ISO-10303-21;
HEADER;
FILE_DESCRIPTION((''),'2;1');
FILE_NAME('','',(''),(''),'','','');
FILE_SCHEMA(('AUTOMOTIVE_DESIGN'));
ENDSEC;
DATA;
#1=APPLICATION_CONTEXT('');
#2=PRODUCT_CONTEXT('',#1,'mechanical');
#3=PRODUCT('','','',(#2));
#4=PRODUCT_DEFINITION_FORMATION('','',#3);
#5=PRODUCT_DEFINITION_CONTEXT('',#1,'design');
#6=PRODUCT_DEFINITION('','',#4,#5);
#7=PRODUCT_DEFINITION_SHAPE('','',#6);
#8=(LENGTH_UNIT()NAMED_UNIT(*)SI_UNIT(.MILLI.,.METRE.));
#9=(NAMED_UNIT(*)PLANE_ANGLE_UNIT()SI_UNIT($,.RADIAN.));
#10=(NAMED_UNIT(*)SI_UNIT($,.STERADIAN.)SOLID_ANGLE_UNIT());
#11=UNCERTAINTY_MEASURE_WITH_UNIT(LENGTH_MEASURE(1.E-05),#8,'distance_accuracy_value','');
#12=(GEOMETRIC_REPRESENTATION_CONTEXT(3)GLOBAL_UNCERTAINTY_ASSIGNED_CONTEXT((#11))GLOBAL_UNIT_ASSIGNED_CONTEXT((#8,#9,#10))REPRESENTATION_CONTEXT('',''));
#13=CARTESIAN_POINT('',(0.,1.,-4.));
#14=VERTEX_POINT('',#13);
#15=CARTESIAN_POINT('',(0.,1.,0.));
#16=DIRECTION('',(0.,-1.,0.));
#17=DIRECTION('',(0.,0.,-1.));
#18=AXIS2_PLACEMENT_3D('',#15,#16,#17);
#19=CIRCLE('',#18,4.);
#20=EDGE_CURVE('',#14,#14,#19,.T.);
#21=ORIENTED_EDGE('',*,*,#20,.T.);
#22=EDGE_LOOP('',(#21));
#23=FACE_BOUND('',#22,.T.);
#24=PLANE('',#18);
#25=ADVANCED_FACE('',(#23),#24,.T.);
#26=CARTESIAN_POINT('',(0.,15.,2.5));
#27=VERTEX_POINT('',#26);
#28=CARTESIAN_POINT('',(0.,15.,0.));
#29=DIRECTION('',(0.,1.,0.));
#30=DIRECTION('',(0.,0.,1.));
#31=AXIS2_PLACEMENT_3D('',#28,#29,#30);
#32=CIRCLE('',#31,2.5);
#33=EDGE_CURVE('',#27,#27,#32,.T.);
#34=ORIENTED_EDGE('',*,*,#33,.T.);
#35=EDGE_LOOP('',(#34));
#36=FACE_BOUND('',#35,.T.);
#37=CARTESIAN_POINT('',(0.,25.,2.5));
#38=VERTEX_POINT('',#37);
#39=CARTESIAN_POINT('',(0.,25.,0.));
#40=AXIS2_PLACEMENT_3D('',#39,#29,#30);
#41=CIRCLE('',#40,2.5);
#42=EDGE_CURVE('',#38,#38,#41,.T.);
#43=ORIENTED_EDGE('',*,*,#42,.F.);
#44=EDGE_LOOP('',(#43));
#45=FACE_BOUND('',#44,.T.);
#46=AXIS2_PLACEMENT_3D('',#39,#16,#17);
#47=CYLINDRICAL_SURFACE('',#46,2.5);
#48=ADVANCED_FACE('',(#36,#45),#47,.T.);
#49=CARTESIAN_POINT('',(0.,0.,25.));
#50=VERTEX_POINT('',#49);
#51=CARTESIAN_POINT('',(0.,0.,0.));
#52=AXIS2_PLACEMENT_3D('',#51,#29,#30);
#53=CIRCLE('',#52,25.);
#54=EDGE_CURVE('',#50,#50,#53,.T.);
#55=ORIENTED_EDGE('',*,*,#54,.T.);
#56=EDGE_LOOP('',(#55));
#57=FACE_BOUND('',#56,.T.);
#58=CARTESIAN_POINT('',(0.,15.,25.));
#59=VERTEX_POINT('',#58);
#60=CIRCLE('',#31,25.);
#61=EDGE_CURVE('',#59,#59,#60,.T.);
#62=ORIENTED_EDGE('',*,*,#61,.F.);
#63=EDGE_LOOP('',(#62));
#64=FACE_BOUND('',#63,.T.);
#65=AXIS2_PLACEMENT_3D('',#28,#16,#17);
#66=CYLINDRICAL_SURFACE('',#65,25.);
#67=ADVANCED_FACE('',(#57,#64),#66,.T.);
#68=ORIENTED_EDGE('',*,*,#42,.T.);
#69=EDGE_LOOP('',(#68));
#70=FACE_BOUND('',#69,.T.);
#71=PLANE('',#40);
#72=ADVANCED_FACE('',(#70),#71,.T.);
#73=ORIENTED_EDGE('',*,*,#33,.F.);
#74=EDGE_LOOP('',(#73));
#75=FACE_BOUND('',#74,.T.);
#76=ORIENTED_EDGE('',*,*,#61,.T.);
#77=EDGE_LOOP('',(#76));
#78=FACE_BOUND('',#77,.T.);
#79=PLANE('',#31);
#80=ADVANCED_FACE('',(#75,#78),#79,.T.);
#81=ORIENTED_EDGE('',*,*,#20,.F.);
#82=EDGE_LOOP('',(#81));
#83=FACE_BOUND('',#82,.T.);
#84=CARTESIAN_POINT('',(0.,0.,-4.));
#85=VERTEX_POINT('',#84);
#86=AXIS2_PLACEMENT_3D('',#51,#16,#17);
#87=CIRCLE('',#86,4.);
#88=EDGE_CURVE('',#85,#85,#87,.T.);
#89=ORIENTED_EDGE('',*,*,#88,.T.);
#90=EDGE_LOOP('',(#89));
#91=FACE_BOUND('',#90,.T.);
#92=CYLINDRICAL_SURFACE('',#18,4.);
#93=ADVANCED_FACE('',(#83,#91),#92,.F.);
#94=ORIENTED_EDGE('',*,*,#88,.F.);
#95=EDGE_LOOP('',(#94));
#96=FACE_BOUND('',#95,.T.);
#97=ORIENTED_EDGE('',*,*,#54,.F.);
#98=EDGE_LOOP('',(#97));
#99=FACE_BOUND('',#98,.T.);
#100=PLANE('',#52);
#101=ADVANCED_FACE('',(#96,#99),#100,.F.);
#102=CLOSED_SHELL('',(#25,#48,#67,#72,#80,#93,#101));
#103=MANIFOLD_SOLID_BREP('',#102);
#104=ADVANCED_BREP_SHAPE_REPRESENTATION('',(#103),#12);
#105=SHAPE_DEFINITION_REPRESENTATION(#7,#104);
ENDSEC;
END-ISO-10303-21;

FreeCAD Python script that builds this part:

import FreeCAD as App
import Part
import Sketcher

doc = App.newDocument("Part")
body = doc.addObject("PartDesign::Body", "Body")

# Sketch on XZ plane
sketch1 = doc.addObject("Sketcher::SketchObject", "Sketch")
body.addObject(sketch1)
sketch1.AttachmentSupport = (doc.XZ_Plane, [""])
sketch1.MapMode = "FlatFace"
sketch1.addGeometry(Part.Circle(App.Vector(0, 0, 0), App.Vector(0, 0, 1), 25), False)
sketch1.addConstraint([
    Sketcher.Constraint("Coincident", 0, 3, -1, 1),
    Sketcher.Constraint("Diameter", 0, 50.0),
])
pad1 = doc.addObject("PartDesign::Pad", "Pad")
body.addObject(pad1)
pad1.Profile = sketch1
pad1.Length = 15
pad1.Reversed = True

# Sketch on XZ plane
sketch2 = doc.addObject("Sketcher::SketchObject", "Sketch001")
body.addObject(sketch2)
sketch2.AttachmentSupport = (doc.XZ_Plane, [""])
sketch2.MapMode = "FlatFace"
sketch2.addGeometry(Part.Circle(App.Vector(0, 0, 0), App.Vector(0, 0, 1), 4), False)
sketch2.addConstraint([
    Sketcher.Constraint("Coincident", 0, 3, -1, 1),
    Sketcher.Constraint("Diameter", 0, 8.0),
])
pocket1 = doc.addObject("PartDesign::Pocket", "Pocket")
body.addObject(pocket1)
pocket1.Profile = sketch2
pocket1.Length = 1

# Sketch on XZ plane
sketch3 = doc.addObject("Sketcher::SketchObject", "Sketch002")
body.addObject(sketch3)
sketch3.AttachmentSupport = (doc.XZ_Plane, [""])
sketch3.MapMode = "FlatFace"
sketch3.AttachmentOffset = App.Placement(App.Vector(0, 0, -15), App.Rotation())
sketch3.addGeometry(Part.Circle(App.Vector(0, 0, 0), App.Vector(0, 0, 1), 2.5), False)
sketch3.addConstraint([
    Sketcher.Constraint("Coincident", 0, 3, -1, 1),
    Sketcher.Constraint("Diameter", 0, 5.0),
])
pad2 = doc.addObject("PartDesign::Pad", "Pad001")
body.addObject(pad2)
pad2.Profile = sketch3
pad2.Length = 10
pad2.Reversed = True

doc.recompute()
